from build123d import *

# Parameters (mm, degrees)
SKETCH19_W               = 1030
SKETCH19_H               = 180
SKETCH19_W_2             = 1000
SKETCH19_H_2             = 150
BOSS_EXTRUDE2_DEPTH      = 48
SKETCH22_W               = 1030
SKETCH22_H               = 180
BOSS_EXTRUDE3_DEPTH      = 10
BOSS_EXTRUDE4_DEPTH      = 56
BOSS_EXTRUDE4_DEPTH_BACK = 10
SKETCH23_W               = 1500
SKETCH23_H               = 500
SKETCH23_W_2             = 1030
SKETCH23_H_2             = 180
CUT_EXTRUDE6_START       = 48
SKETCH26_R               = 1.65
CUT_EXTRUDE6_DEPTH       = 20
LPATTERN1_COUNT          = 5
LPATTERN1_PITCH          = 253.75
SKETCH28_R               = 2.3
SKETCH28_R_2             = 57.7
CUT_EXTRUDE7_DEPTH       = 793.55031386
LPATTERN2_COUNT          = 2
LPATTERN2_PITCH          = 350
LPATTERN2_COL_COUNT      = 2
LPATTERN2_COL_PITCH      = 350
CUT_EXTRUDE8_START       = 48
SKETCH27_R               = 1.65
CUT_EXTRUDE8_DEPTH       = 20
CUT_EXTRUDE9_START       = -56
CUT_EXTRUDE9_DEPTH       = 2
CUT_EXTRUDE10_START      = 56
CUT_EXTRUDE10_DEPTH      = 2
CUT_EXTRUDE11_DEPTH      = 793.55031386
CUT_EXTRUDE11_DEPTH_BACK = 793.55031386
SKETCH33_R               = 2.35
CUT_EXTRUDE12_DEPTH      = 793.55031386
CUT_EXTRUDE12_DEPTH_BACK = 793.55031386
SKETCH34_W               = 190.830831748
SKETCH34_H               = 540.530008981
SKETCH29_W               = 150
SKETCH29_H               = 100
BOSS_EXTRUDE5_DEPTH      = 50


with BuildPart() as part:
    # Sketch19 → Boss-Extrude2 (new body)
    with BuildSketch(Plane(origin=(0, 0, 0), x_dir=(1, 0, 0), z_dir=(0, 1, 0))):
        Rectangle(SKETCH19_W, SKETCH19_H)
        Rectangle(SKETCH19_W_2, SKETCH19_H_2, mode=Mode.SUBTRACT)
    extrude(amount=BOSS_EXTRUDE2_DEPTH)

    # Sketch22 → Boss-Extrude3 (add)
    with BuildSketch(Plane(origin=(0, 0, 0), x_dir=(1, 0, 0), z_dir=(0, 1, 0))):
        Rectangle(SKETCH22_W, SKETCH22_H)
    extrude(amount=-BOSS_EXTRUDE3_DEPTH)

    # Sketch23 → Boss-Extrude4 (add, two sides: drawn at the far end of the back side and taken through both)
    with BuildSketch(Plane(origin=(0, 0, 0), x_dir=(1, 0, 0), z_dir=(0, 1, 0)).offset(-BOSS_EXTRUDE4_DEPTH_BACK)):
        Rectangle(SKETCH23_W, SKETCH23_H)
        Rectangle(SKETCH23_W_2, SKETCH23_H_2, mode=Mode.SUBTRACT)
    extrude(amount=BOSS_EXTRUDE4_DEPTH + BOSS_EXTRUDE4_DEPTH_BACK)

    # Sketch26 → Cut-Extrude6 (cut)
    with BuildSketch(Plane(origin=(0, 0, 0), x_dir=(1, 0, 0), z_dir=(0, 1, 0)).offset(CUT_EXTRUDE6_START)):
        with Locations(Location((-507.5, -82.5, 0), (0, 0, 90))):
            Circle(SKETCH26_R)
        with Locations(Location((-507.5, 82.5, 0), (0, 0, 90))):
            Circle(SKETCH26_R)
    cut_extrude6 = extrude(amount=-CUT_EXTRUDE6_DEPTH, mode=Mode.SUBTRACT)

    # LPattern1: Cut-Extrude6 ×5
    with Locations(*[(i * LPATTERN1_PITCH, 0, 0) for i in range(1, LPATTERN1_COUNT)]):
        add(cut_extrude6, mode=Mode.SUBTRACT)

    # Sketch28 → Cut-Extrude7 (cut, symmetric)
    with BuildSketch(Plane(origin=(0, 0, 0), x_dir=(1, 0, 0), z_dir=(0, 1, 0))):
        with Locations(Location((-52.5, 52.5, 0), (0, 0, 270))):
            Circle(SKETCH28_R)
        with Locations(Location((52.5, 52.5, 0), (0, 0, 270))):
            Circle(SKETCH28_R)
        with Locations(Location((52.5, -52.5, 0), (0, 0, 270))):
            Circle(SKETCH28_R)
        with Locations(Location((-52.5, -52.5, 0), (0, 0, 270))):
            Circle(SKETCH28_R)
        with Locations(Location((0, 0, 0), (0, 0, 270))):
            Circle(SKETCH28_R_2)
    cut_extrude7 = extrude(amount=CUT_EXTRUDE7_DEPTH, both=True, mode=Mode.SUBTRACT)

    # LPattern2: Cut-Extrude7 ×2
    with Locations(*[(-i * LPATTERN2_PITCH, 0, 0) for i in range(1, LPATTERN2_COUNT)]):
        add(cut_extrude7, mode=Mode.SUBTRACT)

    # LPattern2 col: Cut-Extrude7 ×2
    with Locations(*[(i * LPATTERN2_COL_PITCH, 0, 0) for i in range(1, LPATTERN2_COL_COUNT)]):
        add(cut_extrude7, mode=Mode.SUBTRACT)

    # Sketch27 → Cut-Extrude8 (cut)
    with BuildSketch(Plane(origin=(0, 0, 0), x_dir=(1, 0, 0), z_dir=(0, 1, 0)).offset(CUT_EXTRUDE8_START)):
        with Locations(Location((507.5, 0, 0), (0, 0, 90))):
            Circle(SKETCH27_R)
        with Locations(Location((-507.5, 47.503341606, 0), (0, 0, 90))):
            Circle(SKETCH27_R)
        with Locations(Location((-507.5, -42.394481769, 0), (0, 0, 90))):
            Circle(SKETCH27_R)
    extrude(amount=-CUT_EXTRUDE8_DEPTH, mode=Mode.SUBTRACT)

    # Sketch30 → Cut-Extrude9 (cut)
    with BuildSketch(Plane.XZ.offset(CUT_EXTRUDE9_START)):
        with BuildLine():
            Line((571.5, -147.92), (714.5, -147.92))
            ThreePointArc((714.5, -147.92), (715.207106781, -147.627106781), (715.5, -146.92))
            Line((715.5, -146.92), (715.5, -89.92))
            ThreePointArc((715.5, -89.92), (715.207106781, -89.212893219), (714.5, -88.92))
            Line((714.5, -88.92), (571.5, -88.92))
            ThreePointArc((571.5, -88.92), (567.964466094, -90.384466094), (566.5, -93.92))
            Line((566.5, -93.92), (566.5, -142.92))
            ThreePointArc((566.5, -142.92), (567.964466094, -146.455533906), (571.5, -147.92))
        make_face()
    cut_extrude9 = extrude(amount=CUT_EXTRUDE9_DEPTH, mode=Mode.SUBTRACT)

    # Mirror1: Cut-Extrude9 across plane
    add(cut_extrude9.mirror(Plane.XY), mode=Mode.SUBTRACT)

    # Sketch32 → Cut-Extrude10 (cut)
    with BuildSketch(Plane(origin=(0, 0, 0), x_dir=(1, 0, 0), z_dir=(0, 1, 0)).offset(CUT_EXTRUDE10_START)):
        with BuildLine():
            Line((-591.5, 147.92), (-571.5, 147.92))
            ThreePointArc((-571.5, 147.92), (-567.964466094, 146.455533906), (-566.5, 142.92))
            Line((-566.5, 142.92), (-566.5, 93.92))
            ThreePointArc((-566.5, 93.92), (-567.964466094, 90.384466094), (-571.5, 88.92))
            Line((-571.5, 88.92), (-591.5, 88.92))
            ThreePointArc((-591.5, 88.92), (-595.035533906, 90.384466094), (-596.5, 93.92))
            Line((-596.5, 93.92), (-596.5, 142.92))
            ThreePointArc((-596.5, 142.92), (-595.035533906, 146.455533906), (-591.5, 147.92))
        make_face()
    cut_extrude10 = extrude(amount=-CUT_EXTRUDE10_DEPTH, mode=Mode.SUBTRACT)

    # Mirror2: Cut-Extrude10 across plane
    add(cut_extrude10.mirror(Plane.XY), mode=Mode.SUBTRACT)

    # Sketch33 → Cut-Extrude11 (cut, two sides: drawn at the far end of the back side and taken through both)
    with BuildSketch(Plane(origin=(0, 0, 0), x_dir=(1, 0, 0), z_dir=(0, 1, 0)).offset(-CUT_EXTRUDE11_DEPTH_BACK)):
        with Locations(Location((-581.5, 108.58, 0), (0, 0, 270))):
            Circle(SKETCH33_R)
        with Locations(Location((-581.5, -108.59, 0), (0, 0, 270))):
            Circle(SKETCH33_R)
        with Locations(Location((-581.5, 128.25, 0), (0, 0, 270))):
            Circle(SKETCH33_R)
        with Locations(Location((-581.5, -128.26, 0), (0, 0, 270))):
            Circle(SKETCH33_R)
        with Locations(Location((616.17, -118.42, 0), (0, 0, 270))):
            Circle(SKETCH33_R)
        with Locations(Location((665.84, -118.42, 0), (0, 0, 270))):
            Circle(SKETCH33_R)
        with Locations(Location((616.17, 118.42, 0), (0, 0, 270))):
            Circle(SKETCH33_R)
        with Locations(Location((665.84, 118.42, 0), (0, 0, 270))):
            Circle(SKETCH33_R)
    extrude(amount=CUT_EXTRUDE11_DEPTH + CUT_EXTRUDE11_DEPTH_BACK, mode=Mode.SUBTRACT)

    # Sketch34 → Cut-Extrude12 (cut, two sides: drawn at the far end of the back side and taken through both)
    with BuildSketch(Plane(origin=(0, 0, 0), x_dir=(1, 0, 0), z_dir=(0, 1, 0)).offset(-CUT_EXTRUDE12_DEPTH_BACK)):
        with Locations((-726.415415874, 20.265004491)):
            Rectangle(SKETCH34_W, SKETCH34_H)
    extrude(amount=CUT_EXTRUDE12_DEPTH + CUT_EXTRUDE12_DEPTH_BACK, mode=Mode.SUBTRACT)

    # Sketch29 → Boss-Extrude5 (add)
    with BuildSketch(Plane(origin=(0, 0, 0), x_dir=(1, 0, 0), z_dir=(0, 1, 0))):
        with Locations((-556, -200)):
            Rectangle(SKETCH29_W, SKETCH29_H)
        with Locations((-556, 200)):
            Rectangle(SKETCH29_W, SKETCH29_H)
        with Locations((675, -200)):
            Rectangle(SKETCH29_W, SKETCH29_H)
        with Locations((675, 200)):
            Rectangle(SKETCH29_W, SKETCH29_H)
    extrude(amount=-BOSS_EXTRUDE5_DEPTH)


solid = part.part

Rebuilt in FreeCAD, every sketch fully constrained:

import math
import FreeCAD as App
import Part
import Sketcher


def add_polygon(sketch, points):
    """Adds a closed chain of lines whose ends are joined by coincident constraints."""
    first, n = sketch.GeometryCount, len(points)
    for a, b in zip(points, points[1:] + points[:1]):
        sketch.addGeometry(Part.LineSegment(App.Vector(*a, 0), App.Vector(*b, 0)), False)
    for i in range(n):
        sketch.addConstraint(Sketcher.Constraint("Coincident", first + i, 2, first + (i + 1) % n, 1))

doc = App.newDocument("Part")
body = doc.addObject("PartDesign::Body", "Body")

sketch1 = body.newObject("Sketcher::SketchObject", "Sketch")
sketch1.AttachmentSupport = (doc.getObject("XZ_Plane"), [""])
sketch1.MapMode = "FlatFace"
add_polygon(sketch1, [(-515, -90), (-515, 90), (515, 90), (515, -90)])
add_polygon(sketch1, [(500, 75), (-500, 75), (-500, -75), (500, -75)])
sketch1.addConstraint([
    Sketcher.Constraint("Vertical", 0),
    Sketcher.Constraint("Horizontal", 1),
    Sketcher.Constraint("Vertical", 2),
    Sketcher.Constraint("Horizontal", 3),
    Sketcher.Constraint("Horizontal", 4),
    Sketcher.Constraint("Vertical", 5),
    Sketcher.Constraint("Horizontal", 6),
    Sketcher.Constraint("Vertical", 7),
    Sketcher.Constraint("Symmetric", 0, 2, 2, 2, -1, 1),
    Sketcher.Constraint("Symmetric", 4, 2, 6, 2, -1, 1),
    Sketcher.Constraint("DistanceX", 1, 1, 1, 2, 1030.0),
    Sketcher.Constraint("DistanceX", 4, 2, 4, 1, 1000.0),
    Sketcher.Constraint("DistanceY", 0, 1, 0, 2, 180.0),
    Sketcher.Constraint("DistanceY", 5, 2, 5, 1, 150.0),
])
pad1 = body.newObject("PartDesign::Pad", "Pad")
pad1.Profile = sketch1
pad1.Length = 48
pad1.Reversed = True

sketch2 = body.newObject("Sketcher::SketchObject", "Sketch001")
sketch2.AttachmentSupport = (doc.getObject("XZ_Plane"), [""])
sketch2.MapMode = "FlatFace"
add_polygon(sketch2, [(-515, -90), (-515, 90), (515, 90), (515, -90)])
sketch2.addConstraint([
    Sketcher.Constraint("Vertical", 0),
    Sketcher.Constraint("Horizontal", 1),
    Sketcher.Constraint("Vertical", 2),
    Sketcher.Constraint("Horizontal", 3),
    Sketcher.Constraint("Symmetric", 0, 2, 2, 2, -1, 1),
    Sketcher.Constraint("DistanceX", 1, 1, 1, 2, 1030.0),
    Sketcher.Constraint("DistanceY", 0, 1, 0, 2, 180.0),
])
pad2 = body.newObject("PartDesign::Pad", "Pad001")
pad2.Profile = sketch2
pad2.Length = 10

sketch3 = body.newObject("Sketcher::SketchObject", "Sketch002")
sketch3.AttachmentSupport = (doc.getObject("XZ_Plane"), [""])
sketch3.MapMode = "FlatFace"
add_polygon(sketch3, [(-750, -250), (-750, 250), (750, 250), (750, -250)])
add_polygon(sketch3, [(515, 90), (-515, 90), (-515, -90), (515, -90)])
sketch3.addConstraint([
    Sketcher.Constraint("Vertical", 0),
    Sketcher.Constraint("Horizontal", 1),
    Sketcher.Constraint("Vertical", 2),
    Sketcher.Constraint("Horizontal", 3),
    Sketcher.Constraint("Horizontal", 4),
    Sketcher.Constraint("Vertical", 5),
    Sketcher.Constraint("Horizontal", 6),
    Sketcher.Constraint("Vertical", 7),
    Sketcher.Constraint("Symmetric", 0, 2, 2, 2, -1, 1),
    Sketcher.Constraint("Symmetric", 4, 2, 6, 2, -1, 1),
    Sketcher.Constraint("DistanceX", 1, 1, 1, 2, 1500.0),
    Sketcher.Constraint("DistanceX", 4, 2, 4, 1, 1030.0),
    Sketcher.Constraint("DistanceY", 0, 1, 0, 2, 500.0),
    Sketcher.Constraint("DistanceY", 5, 2, 5, 1, 180.0),
])
pad3 = body.newObject("PartDesign::Pad", "Pad002")
pad3.Profile = sketch3
pad3.Type = "TwoLengths"
pad3.Length = 56
pad3.Length2 = 10
pad3.Reversed = True

sketch4 = body.newObject("Sketcher::SketchObject", "Sketch003")
sketch4.AttachmentSupport = (doc.getObject("XZ_Plane"), [""])
sketch4.MapMode = "FlatFace"
sketch4.AttachmentOffset = App.Placement(App.Vector(0, 0, -48), App.Rotation())
sketch4.addGeometry([
    Part.Circle(App.Vector(-507.5, 82.5, 0), App.Vector(0, 0, 1), 1.6),
    Part.Circle(App.Vector(-507.5, -82.5, 0), App.Vector(0, 0, 1), 1.6),
], False)
sketch4.addConstraint([
    Sketcher.Constraint("Equal", 0, 1),
    Sketcher.Constraint("Symmetric", 0, 3, 1, 3, -1),
    Sketcher.Constraint("Diameter", 0, 3.3),
    Sketcher.Constraint("DistanceY", 1, 3, 0, 3, 165.0),
    Sketcher.Constraint("DistanceX", 0, 3, -1, 1, 507.5),
])
pocket1 = body.newObject("PartDesign::Pocket", "Pocket")
pocket1.Profile = sketch4
pocket1.Length = 20
pocket1.Reversed = True
doc.recompute()

linearpattern = body.newObject("PartDesign::LinearPattern", "LinearPattern")
linearpattern.Originals = [pocket1]
linearpattern.Direction = (doc.getObject("X_Axis"), [""])
linearpattern.Mode = "offset"
linearpattern.Offset = 253.75
linearpattern.Occurrences = 5
body.Tip = linearpattern

sketch5 = body.newObject("Sketcher::SketchObject", "Sketch004")
sketch5.AttachmentSupport = (doc.getObject("XZ_Plane"), [""])
sketch5.MapMode = "FlatFace"
sketch5.addGeometry([
    Part.Circle(App.Vector(-52.5, -52.5, 0), App.Vector(0, 0, 1), 2.3),
    Part.Circle(App.Vector(52.5, -52.5, 0), App.Vector(0, 0, 1), 2.3),
    Part.Circle(App.Vector(52.5, 52.5, 0), App.Vector(0, 0, 1), 2.3),
    Part.Circle(App.Vector(-52.5, 52.5, 0), App.Vector(0, 0, 1), 2.3),
    Part.Circle(App.Vector(0, 0, 0), App.Vector(0, 0, 1), 57.7),
], False)
sketch5.addConstraint([
    Sketcher.Constraint("Coincident", 4, 3, -1, 1),
    Sketcher.Constraint("Equal", 0, 1),
    Sketcher.Constraint("Equal", 1, 2),
    Sketcher.Constraint("Equal", 2, 3),
    Sketcher.Constraint("Symmetric", 0, 3, 2, 3, -1, 1),
    Sketcher.Constraint("Symmetric", 1, 3, 3, 3, -1, 1),
    Sketcher.Constraint("Symmetric", 0, 3, 1, 3, -2),
    Sketcher.Constraint("Diameter", 0, 4.6),
    Sketcher.Constraint("Diameter", 4, 115.4),
    Sketcher.Constraint("DistanceX", 0, 3, 1, 3, 105.0),
    Sketcher.Constraint("DistanceY", 1, 3, 2, 3, 105.0),
])
pocket2 = body.newObject("PartDesign::Pocket", "Pocket001")
pocket2.Profile = sketch5
pocket2.Length = 1587.100628
pocket2.Midplane = True
doc.recompute()

linearpattern2 = body.newObject("PartDesign::LinearPattern", "LinearPattern001")
linearpattern2.Originals = [pocket2]
linearpattern2.Direction = (doc.getObject("X_Axis"), [""])
linearpattern2.Mode = "offset"
linearpattern2.Offset = 350
linearpattern2.Occurrences = 2
linearpattern2.Reversed = True
body.Tip = linearpattern2
doc.recompute()

linearpattern3 = body.newObject("PartDesign::LinearPattern", "LinearPattern002")
linearpattern3.Originals = [pocket2]
linearpattern3.Direction = (doc.getObject("X_Axis"), [""])
linearpattern3.Mode = "offset"
linearpattern3.Offset = 350
linearpattern3.Occurrences = 2
body.Tip = linearpattern3

sketch6 = body.newObject("Sketcher::SketchObject", "Sketch005")
sketch6.AttachmentSupport = (doc.getObject("XZ_Plane"), [""])
sketch6.MapMode = "FlatFace"
sketch6.AttachmentOffset = App.Placement(App.Vector(0, 0, -48), App.Rotation())
sketch6.addGeometry([
    Part.Circle(App.Vector(507.5, 0, 0), App.Vector(0, 0, 1), 1.6),
    Part.Circle(App.Vector(-507.5, -47.5, 0), App.Vector(0, 0, 1), 1.6),
    Part.Circle(App.Vector(-507.5, 42.4, 0), App.Vector(0, 0, 1), 1.6),
], False)
sketch6.addConstraint([
    Sketcher.Constraint("Equal", 0, 1),
    Sketcher.Constraint("Equal", 1, 2),
    Sketcher.Constraint("PointOnObject", 0, 3, -1),
    Sketcher.Constraint("Vertical", 1, 3, 2, 3),
    Sketcher.Constraint("Diameter", 0, 3.3),
    Sketcher.Constraint("DistanceX", 1, 3, 0, 3, 1015.0),
    Sketcher.Constraint("DistanceX", -1, 1, 0, 3, 507.5),
    Sketcher.Constraint("DistanceY", 1, 3, -1, 1, 47.503342),
    Sketcher.Constraint("DistanceY", -1, 1, 2, 3, 42.394482),
])
pocket3 = body.newObject("PartDesign::Pocket", "Pocket002")
pocket3.Profile = sketch6
pocket3.Length = 20
pocket3.Reversed = True

sketch7 = body.newObject("Sketcher::SketchObject", "Sketch006")
sketch7.AttachmentSupport = (doc.getObject("XZ_Plane"), [""])
sketch7.MapMode = "FlatFace"
sketch7.AttachmentOffset = App.Placement(App.Vector(0, 0, -56), App.Rotation())
sketch7.addGeometry([
    Part.LineSegment(App.Vector(571.5, -147.9, 0), App.Vector(714.5, -147.9, 0)),
    Part.ArcOfCircle(Part.Circle(App.Vector(714.5, -146.9, 0), App.Vector(0, 0, 1), 1), math.radians(-90), math.radians(0)),
    Part.LineSegment(App.Vector(715.5, -146.9, 0), App.Vector(715.5, -89.9, 0)),
    Part.ArcOfCircle(Part.Circle(App.Vector(714.5, -89.9, 0), App.Vector(0, 0, 1), 1), math.radians(0), math.radians(90)),
    Part.LineSegment(App.Vector(714.5, -88.9, 0), App.Vector(571.5, -88.9, 0)),
    Part.ArcOfCircle(Part.Circle(App.Vector(571.5, -93.9, 0), App.Vector(0, 0, 1), 5), math.radians(90), math.radians(180)),
    Part.LineSegment(App.Vector(566.5, -93.9, 0), App.Vector(566.5, -142.9, 0)),
    Part.ArcOfCircle(Part.Circle(App.Vector(571.5, -142.9, 0), App.Vector(0, 0, 1), 5), math.radians(180), math.radians(270)),
], False)
sketch7.addConstraint([
    Sketcher.Constraint("Tangent", 0, 2, 1, 1),
    Sketcher.Constraint("Tangent", 1, 2, 2, 1),
    Sketcher.Constraint("Tangent", 2, 2, 3, 1),
    Sketcher.Constraint("Tangent", 3, 2, 4, 1),
    Sketcher.Constraint("Tangent", 4, 2, 5, 1),
    Sketcher.Constraint("Tangent", 5, 2, 6, 1),
    Sketcher.Constraint("Tangent", 6, 2, 7, 1),
    Sketcher.Constraint("Tangent", 7, 2, 0, 1),
    Sketcher.Constraint("Horizontal", 0),
    Sketcher.Constraint("Vertical", 2),
    Sketcher.Constraint("Horizontal", 4),
    Sketcher.Constraint("Vertical", 6),
    Sketcher.Constraint("Equal", 1, 3),
    Sketcher.Constraint("Equal", 5, 7),
    Sketcher.Constraint("Radius", 1, 1.0),
    Sketcher.Constraint("Radius", 5, 5.0),
    Sketcher.Constraint("DistanceX", 0, 1, 0, 2, 143.0),
    Sketcher.Constraint("DistanceY", 2, 1, 2, 2, 57.0),
    Sketcher.Constraint("DistanceX", -1, 1, 1, 3, 714.5),
    Sketcher.Constraint("DistanceY", 1, 3, -1, 1, 146.92),
])
pocket4 = body.newObject("PartDesign::Pocket", "Pocket003")
pocket4.Profile = sketch7
pocket4.Length = 2
pocket4.Reversed = True
doc.recompute()

mirrored = body.newObject("PartDesign::Mirrored", "Mirrored")
mirrored.Originals = [pocket4]
mirrored.MirrorPlane = (doc.getObject("XY_Plane"), [""])
body.Tip = mirrored

sketch8 = body.newObject("Sketcher::SketchObject", "Sketch007")
sketch8.AttachmentSupport = (doc.getObject("XZ_Plane"), [""])
sketch8.MapMode = "FlatFace"
sketch8.AttachmentOffset = App.Placement(App.Vector(0, 0, -56), App.Rotation())
sketch8.addGeometry([
    Part.LineSegment(App.Vector(-572, -148, 0), App.Vector(-592, -148, 0)),
    Part.ArcOfCircle(Part.Circle(App.Vector(-592, -143, 0), App.Vector(0, 0, 1), 5), math.radians(180), math.radians(270)),
    Part.LineSegment(App.Vector(-596, -143, 0), App.Vector(-596, -94, 0)),
    Part.ArcOfCircle(Part.Circle(App.Vector(-592, -94, 0), App.Vector(0, 0, 1), 5), math.radians(90), math.radians(180)),
    Part.LineSegment(App.Vector(-592, -89, 0), App.Vector(-572, -89, 0)),
    Part.ArcOfCircle(Part.Circle(App.Vector(-572, -94, 0), App.Vector(0, 0, 1), 5), math.radians(0), math.radians(90)),
    Part.LineSegment(App.Vector(-566, -94, 0), App.Vector(-566, -143, 0)),
    Part.ArcOfCircle(Part.Circle(App.Vector(-572, -143, 0), App.Vector(0, 0, 1), 5), math.radians(-90), math.radians(0)),
], False)
sketch8.addConstraint([
    Sketcher.Constraint("Tangent", 0, 2, 1, 2),
    Sketcher.Constraint("Tangent", 1, 1, 2, 1),
    Sketcher.Constraint("Tangent", 2, 2, 3, 2),
    Sketcher.Constraint("Tangent", 3, 1, 4, 1),
    Sketcher.Constraint("Tangent", 4, 2, 5, 2),
    Sketcher.Constraint("Tangent", 5, 1, 6, 1),
    Sketcher.Constraint("Tangent", 6, 2, 7, 2),
    Sketcher.Constraint("Tangent", 7, 1, 0, 1),
    Sketcher.Constraint("Horizontal", 0),
    Sketcher.Constraint("Vertical", 2),
    Sketcher.Constraint("Horizontal", 4),
    Sketcher.Constraint("Vertical", 6),
    Sketcher.Constraint("Equal", 1, 3),
    Sketcher.Constraint("Equal", 3, 5),
    Sketcher.Constraint("Equal", 5, 7),
    Sketcher.Constraint("Radius", 1, 5.0),
    Sketcher.Constraint("DistanceX", 0, 2, 0, 1, 20.0),
    Sketcher.Constraint("DistanceY", 2, 1, 2, 2, 49.0),
    Sketcher.Constraint("DistanceX", 1, 3, -1, 1, 591.5),
    Sketcher.Constraint("DistanceY", 1, 3, -1, 1, 142.92),
])
pocket5 = body.newObject("PartDesign::Pocket", "Pocket004")
pocket5.Profile = sketch8
pocket5.Length = 2
pocket5.Reversed = True
doc.recompute()

mirrored2 = body.newObject("PartDesign::Mirrored", "Mirrored001")
mirrored2.Originals = [pocket5]
mirrored2.MirrorPlane = (doc.getObject("XY_Plane"), [""])
body.Tip = mirrored2

sketch9 = body.newObject("Sketcher::SketchObject", "Sketch008")
sketch9.AttachmentSupport = (doc.getObject("XZ_Plane"), [""])
sketch9.MapMode = "FlatFace"
sketch9.addGeometry([
    Part.Circle(App.Vector(-581.5, -108.6, 0), App.Vector(0, 0, 1), 2.4),
    Part.Circle(App.Vector(-581.5, 108.6, 0), App.Vector(0, 0, 1), 2.4),
    Part.Circle(App.Vector(-581.5, -128.2, 0), App.Vector(0, 0, 1), 2.4),
    Part.Circle(App.Vector(-581.5, 128.3, 0), App.Vector(0, 0, 1), 2.4),
    Part.Circle(App.Vector(616.2, 118.4, 0), App.Vector(0, 0, 1), 2.4),
    Part.Circle(App.Vector(665.8, 118.4, 0), App.Vector(0, 0, 1), 2.4),
    Part.Circle(App.Vector(616.2, -118.4, 0), App.Vector(0, 0, 1), 2.4),
    Part.Circle(App.Vector(665.8, -118.4, 0), App.Vector(0, 0, 1), 2.4),
], False)
sketch9.addConstraint([
    Sketcher.Constraint("Equal", 0, 1),
    Sketcher.Constraint("Equal", 1, 2),
    Sketcher.Constraint("Equal", 2, 3),
    Sketcher.Constraint("Equal", 3, 4),
    Sketcher.Constraint("Equal", 4, 5),
    Sketcher.Constraint("Equal", 5, 6),
    Sketcher.Constraint("Equal", 6, 7),
    Sketcher.Constraint("Symmetric", 4, 3, 6, 3, -1),
    Sketcher.Constraint("Symmetric", 5, 3, 7, 3, -1),
    Sketcher.Constraint("Horizontal", 4, 3, 5, 3),
    Sketcher.Constraint("Vertical", 0, 3, 1, 3),
    Sketcher.Constraint("Vertical", 1, 3, 2, 3),
    Sketcher.Constraint("Vertical", 2, 3, 3, 3),
    Sketcher.Constraint("Diameter", 0, 4.7),
    Sketcher.Constraint("DistanceY", 0, 3, 4, 3, 227.0),
    Sketcher.Constraint("DistanceX", 0, 3, -1, 1, 581.5),
    Sketcher.Constraint("DistanceY", 0, 3, -1, 1, 108.58),
    Sketcher.Constraint("DistanceY", -1, 1, 1, 3, 108.59),
    Sketcher.Constraint("DistanceY", 2, 3, -1, 1, 128.25),
    Sketcher.Constraint("DistanceY", -1, 1, 3, 3, 128.26),
    Sketcher.Constraint("DistanceX", -1, 1, 4, 3, 616.17),
    Sketcher.Constraint("DistanceX", -1, 1, 5, 3, 665.84),
])
pocket6 = body.newObject("PartDesign::Pocket", "Pocket005")
pocket6.Profile = sketch9
pocket6.Type = "ThroughAll"
pocket6.Midplane = True

sketch10 = body.newObject("Sketcher::SketchObject", "Sketch009")
sketch10.AttachmentSupport = (doc.getObject("XZ_Plane"), [""])
sketch10.MapMode = "FlatFace"
add_polygon(sketch10, [(-822, -291), (-822, 250), (-631, 250), (-631, -291)])
sketch10.addConstraint([
    Sketcher.Constraint("Vertical", 0),
    Sketcher.Constraint("Horizontal", 1),
    Sketcher.Constraint("Vertical", 2),
    Sketcher.Constraint("Horizontal", 3),
    Sketcher.Constraint("DistanceY", -1, 1, 0, 2, 250.0),
    Sketcher.Constraint("DistanceX", 1, 2, -1, 1, 631.0),
    Sketcher.Constraint("DistanceX", 1, 1, 1, 2, 190.830832),
    Sketcher.Constraint("DistanceY", 0, 1, 0, 2, 540.530009),
])
pocket7 = body.newObject("PartDesign::Pocket", "Pocket006")
pocket7.Profile = sketch10
pocket7.Type = "ThroughAll"
pocket7.Midplane = True

sketch11 = body.newObject("Sketcher::SketchObject", "Sketch010")
sketch11.AttachmentSupport = (doc.getObject("XZ_Plane"), [""])
sketch11.MapMode = "FlatFace"
add_polygon(sketch11, [(-631, 150), (-631, 250), (-481, 250), (-481, 150)])
add_polygon(sketch11, [(-631, -250), (-631, -150), (-481, -150), (-481, -250)])
add_polygon(sketch11, [(600, 150), (600, 250), (750, 250), (750, 150)])
add_polygon(sketch11, [(600, -250), (600, -150), (750, -150), (750, -250)])
sketch11.addConstraint([
    Sketcher.Constraint("Vertical", 0),
    Sketcher.Constraint("Horizontal", 1),
    Sketcher.Constraint("Vertical", 2),
    Sketcher.Constraint("Horizontal", 3),
    Sketcher.Constraint("Vertical", 4),
    Sketcher.Constraint("Horizontal", 5),
    Sketcher.Constraint("Vertical", 6),
    Sketcher.Constraint("Horizontal", 7),
    Sketcher.Constraint("Vertical", 8),
    Sketcher.Constraint("Horizontal", 9),
    Sketcher.Constraint("Vertical", 10),
    Sketcher.Constraint("Horizontal", 11),
    Sketcher.Constraint("Vertical", 12),
    Sketcher.Constraint("Horizontal", 13),
    Sketcher.Constraint("Vertical", 14),
    Sketcher.Constraint("Horizontal", 15),
    Sketcher.Constraint("Symmetric", 3, 2, 4, 2, -1),
    Sketcher.Constraint("Symmetric", 1, 2, 6, 2, -1),
    Sketcher.Constraint("Symmetric", 11, 2, 12, 2, -1),
    Sketcher.Constraint("Symmetric", 9, 2, 14, 2, -1),
    Sketcher.Constraint("Horizontal", 1, 2, 8, 2),
    Sketcher.Constraint("Horizontal", 3, 2, 10, 2),
    Sketcher.Constraint("Equal", 7, 9),
    Sketcher.Constraint("DistanceX", 1, 1, 1, 2, 150.0),
    Sketcher.Constraint("DistanceY", 0, 1, 0, 2, 100.0),
    Sketcher.Constraint("DistanceX", 0, 2, -1, 1, 631.0),
    Sketcher.Constraint("DistanceY", -1, 1, 0, 2, 250.0),
    Sketcher.Constraint("DistanceX", -1, 1, 8, 2, 600.0),
])
pad4 = body.newObject("PartDesign::Pad", "Pad003")
pad4.Profile = sketch11
pad4.Length = 50

doc.recompute()
